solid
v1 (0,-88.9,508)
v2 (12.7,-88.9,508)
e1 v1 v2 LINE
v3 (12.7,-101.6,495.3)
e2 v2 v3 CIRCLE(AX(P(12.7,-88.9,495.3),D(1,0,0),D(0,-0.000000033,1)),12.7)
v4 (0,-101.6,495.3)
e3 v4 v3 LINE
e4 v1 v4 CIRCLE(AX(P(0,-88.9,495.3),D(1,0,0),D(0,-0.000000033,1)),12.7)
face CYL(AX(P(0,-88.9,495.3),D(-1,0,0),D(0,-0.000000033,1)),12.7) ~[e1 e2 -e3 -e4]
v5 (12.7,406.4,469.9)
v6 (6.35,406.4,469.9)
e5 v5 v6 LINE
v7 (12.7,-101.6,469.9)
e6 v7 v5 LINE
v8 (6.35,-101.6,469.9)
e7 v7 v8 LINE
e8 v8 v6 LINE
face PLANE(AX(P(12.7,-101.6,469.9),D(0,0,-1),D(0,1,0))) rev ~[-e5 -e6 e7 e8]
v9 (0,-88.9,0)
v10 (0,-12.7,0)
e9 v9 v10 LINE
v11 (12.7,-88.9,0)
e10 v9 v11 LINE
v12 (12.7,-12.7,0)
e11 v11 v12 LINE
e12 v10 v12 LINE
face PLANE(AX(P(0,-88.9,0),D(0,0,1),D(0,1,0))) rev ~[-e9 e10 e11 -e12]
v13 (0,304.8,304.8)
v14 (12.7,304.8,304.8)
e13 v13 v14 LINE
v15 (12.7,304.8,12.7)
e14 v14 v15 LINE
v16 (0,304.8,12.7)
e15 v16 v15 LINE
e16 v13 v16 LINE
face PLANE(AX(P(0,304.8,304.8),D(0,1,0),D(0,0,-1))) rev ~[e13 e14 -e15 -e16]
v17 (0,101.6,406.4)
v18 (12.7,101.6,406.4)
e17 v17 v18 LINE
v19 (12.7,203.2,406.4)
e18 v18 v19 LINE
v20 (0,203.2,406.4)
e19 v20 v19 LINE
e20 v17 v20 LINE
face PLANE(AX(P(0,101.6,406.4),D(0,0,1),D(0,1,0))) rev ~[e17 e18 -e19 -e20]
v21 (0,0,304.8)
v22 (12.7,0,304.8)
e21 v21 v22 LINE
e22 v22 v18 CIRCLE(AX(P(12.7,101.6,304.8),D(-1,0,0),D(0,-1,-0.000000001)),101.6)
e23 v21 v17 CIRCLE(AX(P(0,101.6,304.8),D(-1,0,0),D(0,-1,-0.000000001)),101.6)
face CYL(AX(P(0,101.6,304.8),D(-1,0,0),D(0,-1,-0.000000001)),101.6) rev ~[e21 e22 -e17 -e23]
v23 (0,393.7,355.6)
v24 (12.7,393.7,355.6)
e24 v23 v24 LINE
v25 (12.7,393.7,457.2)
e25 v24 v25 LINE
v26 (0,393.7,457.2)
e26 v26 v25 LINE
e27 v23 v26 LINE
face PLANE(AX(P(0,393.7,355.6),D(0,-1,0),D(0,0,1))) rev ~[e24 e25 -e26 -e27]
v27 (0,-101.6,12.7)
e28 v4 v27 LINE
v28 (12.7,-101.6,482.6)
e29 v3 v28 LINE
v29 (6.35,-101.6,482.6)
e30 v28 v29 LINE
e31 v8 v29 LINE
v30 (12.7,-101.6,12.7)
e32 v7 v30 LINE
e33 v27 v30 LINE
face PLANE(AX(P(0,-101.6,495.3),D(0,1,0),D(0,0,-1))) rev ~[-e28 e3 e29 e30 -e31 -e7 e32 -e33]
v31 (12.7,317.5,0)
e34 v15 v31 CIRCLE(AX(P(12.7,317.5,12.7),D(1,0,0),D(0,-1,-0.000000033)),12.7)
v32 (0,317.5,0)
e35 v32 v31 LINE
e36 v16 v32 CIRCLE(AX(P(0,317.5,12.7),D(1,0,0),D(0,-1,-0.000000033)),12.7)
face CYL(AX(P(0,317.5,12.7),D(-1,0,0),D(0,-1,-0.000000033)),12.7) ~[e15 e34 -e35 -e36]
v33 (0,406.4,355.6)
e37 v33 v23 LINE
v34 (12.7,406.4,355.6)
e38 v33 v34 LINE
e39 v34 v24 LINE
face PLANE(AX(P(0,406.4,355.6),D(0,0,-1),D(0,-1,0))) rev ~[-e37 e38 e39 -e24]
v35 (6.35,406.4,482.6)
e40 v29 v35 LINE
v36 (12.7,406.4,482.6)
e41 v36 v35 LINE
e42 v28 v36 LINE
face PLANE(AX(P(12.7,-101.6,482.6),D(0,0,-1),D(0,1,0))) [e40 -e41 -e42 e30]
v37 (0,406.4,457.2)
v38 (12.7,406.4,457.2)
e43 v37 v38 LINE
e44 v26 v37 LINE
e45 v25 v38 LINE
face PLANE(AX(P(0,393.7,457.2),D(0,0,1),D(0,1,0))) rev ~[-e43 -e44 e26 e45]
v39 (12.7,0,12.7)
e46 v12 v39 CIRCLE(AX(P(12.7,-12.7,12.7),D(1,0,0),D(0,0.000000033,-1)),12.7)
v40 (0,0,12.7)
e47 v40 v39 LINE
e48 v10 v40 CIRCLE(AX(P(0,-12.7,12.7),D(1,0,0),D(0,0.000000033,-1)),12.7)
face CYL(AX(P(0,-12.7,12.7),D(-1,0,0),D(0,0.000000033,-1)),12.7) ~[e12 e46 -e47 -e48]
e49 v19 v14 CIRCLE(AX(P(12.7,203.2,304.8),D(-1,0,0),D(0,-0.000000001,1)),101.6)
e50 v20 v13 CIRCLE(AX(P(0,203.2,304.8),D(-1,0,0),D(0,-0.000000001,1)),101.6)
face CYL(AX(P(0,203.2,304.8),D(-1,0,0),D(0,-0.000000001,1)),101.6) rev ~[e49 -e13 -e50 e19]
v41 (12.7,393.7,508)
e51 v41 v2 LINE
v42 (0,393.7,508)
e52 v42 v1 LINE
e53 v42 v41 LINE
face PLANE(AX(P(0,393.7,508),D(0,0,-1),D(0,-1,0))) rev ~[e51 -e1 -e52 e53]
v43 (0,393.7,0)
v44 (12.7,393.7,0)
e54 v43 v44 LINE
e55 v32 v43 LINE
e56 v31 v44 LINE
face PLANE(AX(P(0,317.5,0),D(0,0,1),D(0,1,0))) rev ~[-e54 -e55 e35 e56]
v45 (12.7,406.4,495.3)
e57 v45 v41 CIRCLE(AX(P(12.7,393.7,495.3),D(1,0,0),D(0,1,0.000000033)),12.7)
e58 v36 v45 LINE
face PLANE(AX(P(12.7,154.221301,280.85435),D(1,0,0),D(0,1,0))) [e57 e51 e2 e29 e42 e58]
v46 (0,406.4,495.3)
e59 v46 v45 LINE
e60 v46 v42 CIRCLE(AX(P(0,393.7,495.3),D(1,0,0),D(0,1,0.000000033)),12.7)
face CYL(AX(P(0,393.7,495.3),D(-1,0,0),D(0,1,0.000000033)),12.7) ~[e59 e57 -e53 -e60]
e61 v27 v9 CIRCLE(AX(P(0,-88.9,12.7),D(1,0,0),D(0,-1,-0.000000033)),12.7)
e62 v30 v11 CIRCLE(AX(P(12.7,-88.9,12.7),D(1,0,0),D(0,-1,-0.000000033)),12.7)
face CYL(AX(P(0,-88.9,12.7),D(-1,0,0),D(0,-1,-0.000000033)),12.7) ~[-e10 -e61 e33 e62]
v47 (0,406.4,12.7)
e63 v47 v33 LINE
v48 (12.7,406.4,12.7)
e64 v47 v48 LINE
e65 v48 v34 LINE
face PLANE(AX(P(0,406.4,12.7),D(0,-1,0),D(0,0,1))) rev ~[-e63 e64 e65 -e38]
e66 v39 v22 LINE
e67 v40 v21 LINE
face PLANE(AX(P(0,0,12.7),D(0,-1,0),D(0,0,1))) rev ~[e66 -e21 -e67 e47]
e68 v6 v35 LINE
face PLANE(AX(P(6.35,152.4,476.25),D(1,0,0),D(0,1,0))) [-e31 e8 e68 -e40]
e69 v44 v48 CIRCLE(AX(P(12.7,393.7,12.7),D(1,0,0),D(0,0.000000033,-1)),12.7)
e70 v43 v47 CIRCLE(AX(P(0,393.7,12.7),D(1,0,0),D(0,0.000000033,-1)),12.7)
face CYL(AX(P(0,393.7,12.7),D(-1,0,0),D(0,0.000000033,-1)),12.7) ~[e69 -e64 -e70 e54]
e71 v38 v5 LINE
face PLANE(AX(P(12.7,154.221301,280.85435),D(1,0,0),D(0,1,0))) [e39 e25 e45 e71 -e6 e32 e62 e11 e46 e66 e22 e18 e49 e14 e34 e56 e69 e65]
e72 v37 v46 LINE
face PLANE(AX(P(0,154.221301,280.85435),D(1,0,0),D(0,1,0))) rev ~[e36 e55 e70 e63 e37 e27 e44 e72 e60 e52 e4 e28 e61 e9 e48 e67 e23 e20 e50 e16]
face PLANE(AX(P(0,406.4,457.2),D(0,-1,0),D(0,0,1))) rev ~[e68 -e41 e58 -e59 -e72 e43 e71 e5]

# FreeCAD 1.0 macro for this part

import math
import FreeCAD as App
import Part
import Sketcher

V = App.Vector
Q = App.Units.Quantity


def add_polygon(sketch, points):
    """Adds a closed chain of lines whose ends are joined by coincident constraints."""
    first, n = sketch.GeometryCount, len(points)
    for a, b in zip(points, points[1:] + points[:1]):
        sketch.addGeometry(Part.LineSegment(App.Vector(*a, 0), App.Vector(*b, 0)), False)
    for i in range(n):
        sketch.addConstraint(Sketcher.Constraint("Coincident", first + i, 2, first + (i + 1) % n, 1))

doc = App.newDocument("Part")
body = doc.addObject("PartDesign::Body", "Body")

# Sketch on YZ plane
sketch1 = doc.addObject("Sketcher::SketchObject", "Sketch")
body.addObject(sketch1)
sketch1.AttachmentSupport = (doc.YZ_Plane, [""])
sketch1.MapMode = "FlatFace"
sketch1.addGeometry([
    Part.ArcOfCircle(Part.Circle(V(-88.9, 12.7, 0), V(0, 0, 1), 12.7), math.radians(-179.999998), math.radians(-90.000002)),  # 0
    Part.LineSegment(V(-88.9, 0, 0), V(-12.7, 0, 0)),  # 1
    Part.ArcOfCircle(Part.Circle(V(-12.7, 12.7, 0), V(0, 0, 1), 12.7), math.radians(-89.999998), math.radians(-0.000002)),  # 2
    Part.LineSegment(V(0, 12.7, 0), V(0, 304.8, 0)),  # 3
    Part.ArcOfCircle(Part.Circle(V(101.6, 304.8, 0), V(0, 0, 1), 101.6), math.radians(90), math.radians(180)),  # 4
    Part.LineSegment(V(101.6, 406.4, 0), V(203.2, 406.4, 0)),  # 5
    Part.ArcOfCircle(Part.Circle(V(203.2, 304.8, 0), V(0, 0, 1), 101.6), math.radians(0), math.radians(90)),  # 6
    Part.LineSegment(V(304.8, 304.8, 0), V(304.8, 12.7, 0)),  # 7
    Part.ArcOfCircle(Part.Circle(V(317.5, 12.7, 0), V(0, 0, 1), 12.7), math.radians(-179.999998), math.radians(-90.000002)),  # 8
    Part.LineSegment(V(317.5, 0, 0), V(393.7, 0, 0)),  # 9
    Part.ArcOfCircle(Part.Circle(V(393.7, 12.7, 0), V(0, 0, 1), 12.7), math.radians(-89.999998), math.radians(-0.000002)),  # 10
    Part.LineSegment(V(406.4, 12.7, 0), V(406.4, 355.6, 0)),  # 11
    Part.LineSegment(V(406.4, 355.6, 0), V(393.7, 355.6, 0)),  # 12
    Part.LineSegment(V(393.7, 355.6, 0), V(393.7, 457.2, 0)),  # 13
    Part.LineSegment(V(393.7, 457.2, 0), V(406.4, 457.2, 0)),  # 14
    Part.LineSegment(V(406.4, 457.2, 0), V(406.4, 495.3, 0)),  # 15
    Part.ArcOfCircle(Part.Circle(V(393.7, 495.3, 0), V(0, 0, 1), 12.7), math.radians(0.000002), math.radians(89.999998)),  # 16
    Part.LineSegment(V(393.7, 508, 0), V(-88.9, 508, 0)),  # 17
    Part.ArcOfCircle(Part.Circle(V(-88.9, 495.3, 0), V(0, 0, 1), 12.7), math.radians(90.000002), math.radians(179.999998)),  # 18
    Part.LineSegment(V(-101.6, 495.3, 0), V(-101.6, 12.7, 0)),  # 19
], False)
sketch1.addConstraint([
    Sketcher.Constraint("Tangent", 0, 2, 1, 1),
    Sketcher.Constraint("Tangent", 1, 2, 2, 1),
    Sketcher.Constraint("Tangent", 2, 2, 3, 1),
    Sketcher.Constraint("Tangent", 3, 2, 4, 2),
    Sketcher.Constraint("Tangent", 4, 1, 5, 1),
    Sketcher.Constraint("Tangent", 5, 2, 6, 2),
    Sketcher.Constraint("Tangent", 6, 1, 7, 1),
    Sketcher.Constraint("Tangent", 7, 2, 8, 1),
    Sketcher.Constraint("Tangent", 8, 2, 9, 1),
    Sketcher.Constraint("Tangent", 9, 2, 10, 1),
    Sketcher.Constraint("Tangent", 10, 2, 11, 1),
    Sketcher.Constraint("Coincident", 11, 2, 12, 1),
    Sketcher.Constraint("Coincident", 12, 2, 13, 1),
    Sketcher.Constraint("Coincident", 13, 2, 14, 1),
    Sketcher.Constraint("Coincident", 14, 2, 15, 1),
    Sketcher.Constraint("Tangent", 15, 2, 16, 1),
    Sketcher.Constraint("Tangent", 16, 2, 17, 1),
    Sketcher.Constraint("Tangent", 17, 2, 18, 1),
    Sketcher.Constraint("Tangent", 18, 2, 19, 1),
    Sketcher.Constraint("Tangent", 19, 2, 0, 1),
    Sketcher.Constraint("Horizontal", 1),
    Sketcher.Constraint("Vertical", 3),
    Sketcher.Constraint("Horizontal", 5),
    Sketcher.Constraint("Vertical", 7),
    Sketcher.Constraint("Horizontal", 9),
    Sketcher.Constraint("Vertical", 11),
    Sketcher.Constraint("Horizontal", 12),
    Sketcher.Constraint("Vertical", 13),
    Sketcher.Constraint("Horizontal", 14),
    Sketcher.Constraint("Vertical", 15),
    Sketcher.Constraint("Horizontal", 17),
    Sketcher.Constraint("Vertical", 19),
    Sketcher.Constraint("Equal", 0, 2),
    Sketcher.Constraint("Equal", 4, 6),
    Sketcher.Constraint("Equal", 2, 8),
    Sketcher.Constraint("Equal", 8, 10),
    Sketcher.Constraint("Equal", 10, 16),
    Sketcher.Constraint("Equal", 16, 18),
    Sketcher.Constraint("PointOnObject", 0, 2, -1),
    Sketcher.Constraint("PointOnObject", 2, 2, -2),
    Sketcher.Constraint("PointOnObject", 8, 2, -1),
    Sketcher.Constraint("Vertical", 10, 3, 16, 3),
    Sketcher.Constraint("Vertical", 9, 2, 12, 2),
    Sketcher.Constraint("Equal", 1, 9),
    Sketcher.Constraint("Equal", 5, 13),
    Sketcher.Constraint("Equal", 17, 19),
    Sketcher.Constraint("Radius", 4, Q("4 in")),
    Sketcher.Constraint("Radius", 0, Q("0.5 in")),
    Sketcher.Constraint("DistanceX", 1, 1, 1, 2, Q("3 in")),
    Sketcher.Constraint("DistanceX", 5, 1, 5, 2, Q("4 in")),
    Sketcher.Constraint("DistanceY", 3, 1, 3, 2, Q("11.5 in")),
    Sketcher.Constraint("DistanceY", 11, 1, 11, 2, Q("13.5 in")),
])
pad1 = doc.addObject("PartDesign::Pad", "Pad")
body.addObject(pad1)
pad1.Profile = sketch1
pad1.Length = Q("0.5 in")

# Sketch on YZ plane
sketch2 = doc.addObject("Sketcher::SketchObject", "Sketch001")
body.addObject(sketch2)
sketch2.AttachmentSupport = (doc.YZ_Plane, [""])
sketch2.MapMode = "FlatFace"
sketch2.AttachmentOffset = App.Placement(V(0, 0, 0.5 * 25.4), App.Rotation())
add_polygon(sketch2, [(-101.6, 482.6), (-101.6, 469.9), (406.4, 469.9), (406.4, 482.6)])  # lines 0-3
sketch2.addConstraint([
    Sketcher.Constraint("Vertical", 0),
    Sketcher.Constraint("Horizontal", 1),
    Sketcher.Constraint("Vertical", 2),
    Sketcher.Constraint("Horizontal", 3),
    Sketcher.Constraint("DistanceX", 1, 1, 1, 2, Q("20 in")),
    Sketcher.Constraint("DistanceY", 0, 2, 0, 1, Q("0.5 in")),
    Sketcher.Constraint("DistanceX", 0, 2, -1, 1, Q("4 in")),
    Sketcher.Constraint("DistanceY", -1, 1, 2, 2, Q("19 in")),
])
pocket1 = doc.addObject("PartDesign::Pocket", "Pocket")
body.addObject(pocket1)
pocket1.Profile = sketch2
pocket1.Length = Q("0.25 in")

doc.recompute()
